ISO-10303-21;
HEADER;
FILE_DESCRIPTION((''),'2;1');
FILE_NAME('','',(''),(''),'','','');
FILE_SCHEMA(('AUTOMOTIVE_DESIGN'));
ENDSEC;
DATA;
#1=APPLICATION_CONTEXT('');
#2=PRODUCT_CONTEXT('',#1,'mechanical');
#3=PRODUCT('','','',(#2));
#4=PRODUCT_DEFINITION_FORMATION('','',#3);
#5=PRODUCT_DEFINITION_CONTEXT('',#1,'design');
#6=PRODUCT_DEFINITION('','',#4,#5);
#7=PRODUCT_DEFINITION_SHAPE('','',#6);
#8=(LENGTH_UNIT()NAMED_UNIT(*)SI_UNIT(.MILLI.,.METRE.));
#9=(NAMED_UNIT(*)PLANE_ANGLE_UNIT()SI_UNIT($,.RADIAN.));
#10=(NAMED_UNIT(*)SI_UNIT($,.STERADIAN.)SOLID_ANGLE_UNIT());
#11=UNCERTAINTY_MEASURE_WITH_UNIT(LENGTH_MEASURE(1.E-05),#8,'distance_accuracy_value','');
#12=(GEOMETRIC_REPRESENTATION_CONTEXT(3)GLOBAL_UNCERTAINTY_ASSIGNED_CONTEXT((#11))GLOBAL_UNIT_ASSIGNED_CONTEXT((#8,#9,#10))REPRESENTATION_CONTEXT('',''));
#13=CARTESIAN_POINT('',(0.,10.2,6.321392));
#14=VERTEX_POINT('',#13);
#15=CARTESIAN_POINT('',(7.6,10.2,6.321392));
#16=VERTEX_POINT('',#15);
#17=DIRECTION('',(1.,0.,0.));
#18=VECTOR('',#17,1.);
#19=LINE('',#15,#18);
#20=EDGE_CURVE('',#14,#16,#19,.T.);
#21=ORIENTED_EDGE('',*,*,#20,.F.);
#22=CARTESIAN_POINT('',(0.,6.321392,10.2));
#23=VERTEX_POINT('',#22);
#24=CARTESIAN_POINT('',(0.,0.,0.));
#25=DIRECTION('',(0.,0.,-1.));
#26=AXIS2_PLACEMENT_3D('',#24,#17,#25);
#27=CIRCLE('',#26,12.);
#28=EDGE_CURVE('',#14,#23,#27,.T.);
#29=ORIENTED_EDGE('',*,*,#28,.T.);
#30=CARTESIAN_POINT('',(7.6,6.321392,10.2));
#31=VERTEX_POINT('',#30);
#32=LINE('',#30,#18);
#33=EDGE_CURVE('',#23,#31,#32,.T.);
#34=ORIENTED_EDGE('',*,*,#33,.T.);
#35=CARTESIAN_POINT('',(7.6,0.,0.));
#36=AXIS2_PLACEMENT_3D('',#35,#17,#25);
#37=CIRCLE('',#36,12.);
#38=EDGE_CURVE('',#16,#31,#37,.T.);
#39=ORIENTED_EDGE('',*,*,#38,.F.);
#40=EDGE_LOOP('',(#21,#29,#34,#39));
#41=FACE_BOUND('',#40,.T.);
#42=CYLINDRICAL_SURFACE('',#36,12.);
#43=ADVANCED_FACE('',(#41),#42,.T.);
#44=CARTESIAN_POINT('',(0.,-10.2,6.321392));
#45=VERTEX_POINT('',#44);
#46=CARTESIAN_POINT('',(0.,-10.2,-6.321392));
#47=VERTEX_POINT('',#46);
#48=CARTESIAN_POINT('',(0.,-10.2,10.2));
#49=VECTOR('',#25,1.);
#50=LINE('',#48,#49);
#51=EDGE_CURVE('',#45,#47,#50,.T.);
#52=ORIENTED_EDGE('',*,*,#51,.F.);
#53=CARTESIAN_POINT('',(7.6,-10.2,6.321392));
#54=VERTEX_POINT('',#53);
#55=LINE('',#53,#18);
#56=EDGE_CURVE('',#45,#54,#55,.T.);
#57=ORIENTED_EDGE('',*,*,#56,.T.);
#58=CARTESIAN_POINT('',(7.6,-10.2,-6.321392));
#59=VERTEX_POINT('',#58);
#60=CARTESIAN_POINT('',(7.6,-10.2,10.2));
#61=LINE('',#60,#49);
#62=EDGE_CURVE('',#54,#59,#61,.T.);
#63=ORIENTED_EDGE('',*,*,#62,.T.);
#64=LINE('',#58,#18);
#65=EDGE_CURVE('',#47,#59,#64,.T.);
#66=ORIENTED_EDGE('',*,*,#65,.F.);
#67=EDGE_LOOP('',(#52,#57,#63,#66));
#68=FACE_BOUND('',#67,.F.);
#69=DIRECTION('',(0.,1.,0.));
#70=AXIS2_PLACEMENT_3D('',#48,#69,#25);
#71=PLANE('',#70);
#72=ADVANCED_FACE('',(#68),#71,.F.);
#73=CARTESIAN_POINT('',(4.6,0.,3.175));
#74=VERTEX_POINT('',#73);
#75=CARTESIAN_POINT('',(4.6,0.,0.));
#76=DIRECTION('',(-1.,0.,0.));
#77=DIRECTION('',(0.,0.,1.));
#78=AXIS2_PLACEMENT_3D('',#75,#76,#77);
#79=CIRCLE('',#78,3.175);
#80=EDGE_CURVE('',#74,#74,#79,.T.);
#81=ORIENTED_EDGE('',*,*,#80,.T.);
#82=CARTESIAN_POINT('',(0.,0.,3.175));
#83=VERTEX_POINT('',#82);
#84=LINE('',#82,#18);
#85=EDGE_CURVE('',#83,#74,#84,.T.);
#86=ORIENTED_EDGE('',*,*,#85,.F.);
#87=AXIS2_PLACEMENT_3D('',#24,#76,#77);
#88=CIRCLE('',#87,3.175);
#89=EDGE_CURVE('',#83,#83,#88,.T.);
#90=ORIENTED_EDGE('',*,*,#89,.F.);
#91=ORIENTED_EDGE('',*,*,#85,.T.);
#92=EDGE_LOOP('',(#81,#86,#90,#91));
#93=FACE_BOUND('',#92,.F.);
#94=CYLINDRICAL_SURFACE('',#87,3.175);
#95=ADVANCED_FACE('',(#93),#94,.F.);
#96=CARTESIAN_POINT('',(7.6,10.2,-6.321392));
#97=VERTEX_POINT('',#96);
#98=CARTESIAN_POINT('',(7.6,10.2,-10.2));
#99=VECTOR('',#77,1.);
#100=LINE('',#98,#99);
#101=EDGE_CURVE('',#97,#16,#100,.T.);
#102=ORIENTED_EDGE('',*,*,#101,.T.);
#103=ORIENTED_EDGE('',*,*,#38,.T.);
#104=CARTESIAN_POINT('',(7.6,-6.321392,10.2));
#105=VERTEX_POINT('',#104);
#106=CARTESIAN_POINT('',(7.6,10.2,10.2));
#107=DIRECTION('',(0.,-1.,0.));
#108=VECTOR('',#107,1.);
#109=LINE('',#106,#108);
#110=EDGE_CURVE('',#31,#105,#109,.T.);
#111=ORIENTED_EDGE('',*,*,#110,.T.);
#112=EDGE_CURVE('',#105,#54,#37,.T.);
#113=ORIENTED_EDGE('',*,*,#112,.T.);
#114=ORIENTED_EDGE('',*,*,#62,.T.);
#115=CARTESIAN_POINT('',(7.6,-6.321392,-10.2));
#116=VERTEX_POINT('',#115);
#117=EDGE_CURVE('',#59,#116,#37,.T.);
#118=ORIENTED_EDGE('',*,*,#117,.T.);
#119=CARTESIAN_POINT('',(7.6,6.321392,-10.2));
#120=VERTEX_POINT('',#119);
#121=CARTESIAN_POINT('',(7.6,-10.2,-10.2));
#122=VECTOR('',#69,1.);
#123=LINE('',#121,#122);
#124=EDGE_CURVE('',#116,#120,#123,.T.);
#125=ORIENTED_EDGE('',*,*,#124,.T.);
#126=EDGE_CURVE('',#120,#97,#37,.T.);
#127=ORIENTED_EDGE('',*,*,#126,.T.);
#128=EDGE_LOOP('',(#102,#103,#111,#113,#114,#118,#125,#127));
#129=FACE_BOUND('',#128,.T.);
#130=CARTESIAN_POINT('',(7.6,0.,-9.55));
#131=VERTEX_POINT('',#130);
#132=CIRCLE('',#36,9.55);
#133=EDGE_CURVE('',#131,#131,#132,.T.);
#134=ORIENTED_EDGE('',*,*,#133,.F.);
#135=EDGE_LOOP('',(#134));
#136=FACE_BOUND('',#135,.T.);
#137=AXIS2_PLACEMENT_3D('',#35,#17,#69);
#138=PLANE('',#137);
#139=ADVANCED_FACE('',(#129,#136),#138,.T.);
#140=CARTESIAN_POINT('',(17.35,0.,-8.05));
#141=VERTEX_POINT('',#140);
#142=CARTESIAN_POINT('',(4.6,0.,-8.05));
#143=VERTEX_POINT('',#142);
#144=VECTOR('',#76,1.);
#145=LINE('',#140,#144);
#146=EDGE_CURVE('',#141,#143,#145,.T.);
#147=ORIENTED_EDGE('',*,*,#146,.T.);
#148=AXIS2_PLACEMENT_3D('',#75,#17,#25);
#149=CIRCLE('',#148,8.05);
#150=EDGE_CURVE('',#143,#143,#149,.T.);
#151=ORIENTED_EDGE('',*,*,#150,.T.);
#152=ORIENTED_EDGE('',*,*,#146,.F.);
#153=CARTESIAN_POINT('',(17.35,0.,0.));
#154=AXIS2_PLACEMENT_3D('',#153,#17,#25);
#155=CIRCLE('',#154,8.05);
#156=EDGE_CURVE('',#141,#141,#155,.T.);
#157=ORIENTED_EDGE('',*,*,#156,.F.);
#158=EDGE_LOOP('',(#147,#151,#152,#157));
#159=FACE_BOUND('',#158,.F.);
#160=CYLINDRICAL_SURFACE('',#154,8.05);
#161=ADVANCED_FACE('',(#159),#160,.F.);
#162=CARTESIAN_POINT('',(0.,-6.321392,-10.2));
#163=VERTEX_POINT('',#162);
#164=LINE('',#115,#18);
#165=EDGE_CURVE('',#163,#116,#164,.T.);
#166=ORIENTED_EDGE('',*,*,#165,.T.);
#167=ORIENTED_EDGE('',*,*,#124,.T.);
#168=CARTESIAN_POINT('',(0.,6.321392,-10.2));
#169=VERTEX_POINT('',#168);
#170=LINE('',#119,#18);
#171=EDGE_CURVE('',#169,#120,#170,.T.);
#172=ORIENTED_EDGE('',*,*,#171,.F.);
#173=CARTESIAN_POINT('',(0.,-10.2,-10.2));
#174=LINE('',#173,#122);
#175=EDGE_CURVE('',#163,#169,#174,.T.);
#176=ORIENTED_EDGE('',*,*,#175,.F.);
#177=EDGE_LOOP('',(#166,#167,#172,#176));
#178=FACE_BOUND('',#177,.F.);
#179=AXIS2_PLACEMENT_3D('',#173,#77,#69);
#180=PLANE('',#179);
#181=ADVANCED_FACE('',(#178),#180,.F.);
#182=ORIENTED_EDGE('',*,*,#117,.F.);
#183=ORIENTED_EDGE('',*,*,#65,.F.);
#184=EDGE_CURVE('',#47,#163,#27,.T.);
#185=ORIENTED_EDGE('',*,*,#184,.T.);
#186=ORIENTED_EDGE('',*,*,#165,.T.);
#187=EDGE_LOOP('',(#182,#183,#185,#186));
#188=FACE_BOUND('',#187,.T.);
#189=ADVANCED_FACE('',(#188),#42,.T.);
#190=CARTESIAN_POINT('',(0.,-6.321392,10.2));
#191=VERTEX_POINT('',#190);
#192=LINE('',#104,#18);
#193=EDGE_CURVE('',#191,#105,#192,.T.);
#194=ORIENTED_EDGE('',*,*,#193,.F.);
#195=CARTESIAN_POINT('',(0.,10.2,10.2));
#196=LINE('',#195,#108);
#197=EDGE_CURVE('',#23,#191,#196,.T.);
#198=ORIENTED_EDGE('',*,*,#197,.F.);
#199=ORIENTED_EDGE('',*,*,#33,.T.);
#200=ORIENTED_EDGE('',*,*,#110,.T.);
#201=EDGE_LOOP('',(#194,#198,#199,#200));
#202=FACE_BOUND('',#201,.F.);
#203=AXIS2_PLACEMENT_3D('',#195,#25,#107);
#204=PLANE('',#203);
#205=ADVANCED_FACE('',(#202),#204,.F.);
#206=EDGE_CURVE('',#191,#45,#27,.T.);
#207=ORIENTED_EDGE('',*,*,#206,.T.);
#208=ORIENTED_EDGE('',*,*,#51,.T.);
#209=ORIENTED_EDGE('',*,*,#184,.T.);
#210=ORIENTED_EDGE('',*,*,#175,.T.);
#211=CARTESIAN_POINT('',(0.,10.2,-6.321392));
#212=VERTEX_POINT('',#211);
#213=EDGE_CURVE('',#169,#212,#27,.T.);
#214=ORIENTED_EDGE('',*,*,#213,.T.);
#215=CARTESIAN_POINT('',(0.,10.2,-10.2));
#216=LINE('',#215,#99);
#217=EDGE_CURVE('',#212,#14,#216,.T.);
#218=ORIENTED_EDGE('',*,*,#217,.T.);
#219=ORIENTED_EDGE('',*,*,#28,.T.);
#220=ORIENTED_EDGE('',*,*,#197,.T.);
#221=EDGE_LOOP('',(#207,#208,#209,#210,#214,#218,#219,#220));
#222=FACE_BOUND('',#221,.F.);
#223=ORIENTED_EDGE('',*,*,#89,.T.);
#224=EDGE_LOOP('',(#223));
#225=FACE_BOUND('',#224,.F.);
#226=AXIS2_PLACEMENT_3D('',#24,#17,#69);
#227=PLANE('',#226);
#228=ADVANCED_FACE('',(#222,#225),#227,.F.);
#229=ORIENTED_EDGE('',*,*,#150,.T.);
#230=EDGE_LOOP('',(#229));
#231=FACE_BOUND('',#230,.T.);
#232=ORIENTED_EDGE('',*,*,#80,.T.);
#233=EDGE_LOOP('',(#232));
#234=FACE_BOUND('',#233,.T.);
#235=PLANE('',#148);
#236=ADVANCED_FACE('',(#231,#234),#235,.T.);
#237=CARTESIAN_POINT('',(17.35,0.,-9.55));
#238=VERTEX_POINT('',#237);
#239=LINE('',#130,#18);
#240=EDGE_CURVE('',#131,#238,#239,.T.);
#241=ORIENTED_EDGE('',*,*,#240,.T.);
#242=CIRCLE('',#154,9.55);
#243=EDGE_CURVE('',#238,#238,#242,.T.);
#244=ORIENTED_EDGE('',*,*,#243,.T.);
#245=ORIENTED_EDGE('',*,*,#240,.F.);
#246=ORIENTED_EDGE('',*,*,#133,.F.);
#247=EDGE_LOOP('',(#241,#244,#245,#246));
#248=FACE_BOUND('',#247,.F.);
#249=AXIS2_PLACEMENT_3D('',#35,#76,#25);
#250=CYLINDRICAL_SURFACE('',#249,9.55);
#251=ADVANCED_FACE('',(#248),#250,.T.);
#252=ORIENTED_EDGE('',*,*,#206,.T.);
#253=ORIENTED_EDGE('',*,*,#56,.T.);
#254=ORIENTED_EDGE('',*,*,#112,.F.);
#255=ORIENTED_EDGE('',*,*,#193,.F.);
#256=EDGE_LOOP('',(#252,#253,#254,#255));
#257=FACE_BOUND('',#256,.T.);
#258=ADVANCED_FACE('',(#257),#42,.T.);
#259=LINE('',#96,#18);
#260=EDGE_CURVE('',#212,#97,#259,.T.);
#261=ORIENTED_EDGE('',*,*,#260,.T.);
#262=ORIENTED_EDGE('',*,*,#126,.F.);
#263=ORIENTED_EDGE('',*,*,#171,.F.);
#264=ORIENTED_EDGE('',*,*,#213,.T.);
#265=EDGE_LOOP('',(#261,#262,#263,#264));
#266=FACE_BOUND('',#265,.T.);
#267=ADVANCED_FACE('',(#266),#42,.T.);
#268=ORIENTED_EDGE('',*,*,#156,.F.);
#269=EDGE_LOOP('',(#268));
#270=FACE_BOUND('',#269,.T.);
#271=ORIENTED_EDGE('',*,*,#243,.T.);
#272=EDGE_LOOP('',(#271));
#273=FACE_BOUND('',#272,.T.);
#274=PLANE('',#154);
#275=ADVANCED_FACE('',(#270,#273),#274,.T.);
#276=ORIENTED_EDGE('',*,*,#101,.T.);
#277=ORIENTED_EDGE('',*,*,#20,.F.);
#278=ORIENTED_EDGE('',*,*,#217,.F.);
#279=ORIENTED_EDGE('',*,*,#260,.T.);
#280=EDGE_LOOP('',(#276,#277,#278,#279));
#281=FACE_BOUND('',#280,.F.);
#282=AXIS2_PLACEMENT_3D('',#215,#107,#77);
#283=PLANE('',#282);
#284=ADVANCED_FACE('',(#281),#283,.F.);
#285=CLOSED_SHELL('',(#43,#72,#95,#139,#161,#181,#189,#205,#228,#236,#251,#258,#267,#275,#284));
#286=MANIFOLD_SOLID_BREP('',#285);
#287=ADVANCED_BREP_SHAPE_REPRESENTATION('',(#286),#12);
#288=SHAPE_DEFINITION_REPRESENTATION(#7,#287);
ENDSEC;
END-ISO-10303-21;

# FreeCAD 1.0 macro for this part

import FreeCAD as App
import Part
import Sketcher
from FreeCAD import Vector
Q = App.Units.Quantity


def add_polygon(sketch, points):
    """Adds a closed chain of lines whose ends are joined by coincident constraints."""
    first, n = sketch.GeometryCount, len(points)
    for a, b in zip(points, points[1:] + points[:1]):
        sketch.addGeometry(Part.LineSegment(App.Vector(*a, 0), App.Vector(*b, 0)), False)
    for i in range(n):
        sketch.addConstraint(Sketcher.Constraint("Coincident", first + i, 2, first + (i + 1) % n, 1))

doc = App.newDocument("Part")
params = doc.addObject("Spreadsheet::Sheet", "Params")
for row, (alias, value) in enumerate([
    ("sketch1_width", "20.4 mm"),
    ("pad1_length", "7.6 mm"),
    ("sketch2_diameter", "24 mm"),
    ("pocket1_length", "7.6 mm"),
    ("sketch3_diameter", "19.1 mm"),
    ("pad2_length", "9.75 mm"),
    ("sketch4_diameter", "16.1 mm"),
    ("pocket2_length", "12.75 mm"),
    ("sketch5_diameter", "6.35 mm"),
    ("pocket3_length", "12.75 mm"),
], start=1):
    params.set(f"A{row}", alias)
    params.set(f"B{row}", "=" + value)
    params.setAlias(f"B{row}", alias)

body = doc.addObject("PartDesign::Body", "Body")

# Sketch on YZ plane
sketch1 = body.newObject("Sketcher::SketchObject", "Sketch")
sketch1.AttachmentSupport = (doc.getObject("YZ_Plane"), [""])
sketch1.MapMode = "FlatFace"
add_polygon(sketch1, [(-10, 10), (-10, -10), (10, -10), (10, 10)])  # lines 0-3
sketch1.addConstraint([
    Sketcher.Constraint("Vertical", 0),
    Sketcher.Constraint("Horizontal", 1),
    Sketcher.Constraint("Vertical", 2),
    Sketcher.Constraint("Horizontal", 3),
    Sketcher.Constraint("Symmetric", 0, 2, 2, 2, -1, 1),
    Sketcher.Constraint("Equal", 3, 0),
    Sketcher.Constraint("DistanceX", 1, 1, 1, 2, Q("20.4 mm")),
])
sketch1.setExpression("Constraints[10]", "Params.sketch1_width")
pad1 = body.newObject("PartDesign::Pad", "Pad")
pad1.Profile = sketch1
pad1.setExpression("Length", "Params.pad1_length")

# Sketch on YZ plane
sketch2 = body.newObject("Sketcher::SketchObject", "Sketch001")
sketch2.AttachmentSupport = (doc.getObject("YZ_Plane"), [""])
sketch2.MapMode = "FlatFace"
sketch2.AttachmentOffset = App.Placement(Vector(0, 0, 7.6), App.Rotation())
sketch2.addGeometry([
    Part.Circle(Vector(0, 0, 0), Vector(0, 0, 1), 17),
    Part.Circle(Vector(0, 0, 0), Vector(0, 0, 1), 12),
], False)
sketch2.addConstraint([
    Sketcher.Constraint("Coincident", 0, 3, -1, 1),
    Sketcher.Constraint("Coincident", 1, 3, -1, 1),
    Sketcher.Constraint("Diameter", 1, Q("24 mm")),
    Sketcher.Constraint("Diameter", 0, Q("33.376 mm")),
])
sketch2.setExpression("Constraints[2]", "Params.sketch2_diameter")
pocket1 = body.newObject("PartDesign::Pocket", "Pocket")
pocket1.Profile = sketch2
pocket1.setExpression("Length", "Params.pocket1_length")

# Sketch on YZ plane
sketch3 = body.newObject("Sketcher::SketchObject", "Sketch002")
sketch3.AttachmentSupport = (doc.getObject("YZ_Plane"), [""])
sketch3.MapMode = "FlatFace"
sketch3.AttachmentOffset = App.Placement(Vector(0, 0, 7.6), App.Rotation())
sketch3.addGeometry(Part.Circle(Vector(0, 0, 0), Vector(0, 0, 1), 10), False)
sketch3.addConstraint([
    Sketcher.Constraint("Coincident", 0, 3, -1, 1),
    Sketcher.Constraint("Diameter", 0, Q("19.1 mm")),
])
sketch3.setExpression("Constraints[1]", "Params.sketch3_diameter")
pad2 = body.newObject("PartDesign::Pad", "Pad001")
pad2.Profile = sketch3
pad2.setExpression("Length", "Params.pad2_length")

# Sketch on YZ plane
sketch4 = body.newObject("Sketcher::SketchObject", "Sketch003")
sketch4.AttachmentSupport = (doc.getObject("YZ_Plane"), [""])
sketch4.MapMode = "FlatFace"
sketch4.AttachmentOffset = App.Placement(Vector(0, 0, 17.35), App.Rotation())
sketch4.addGeometry(Part.Circle(Vector(0, 0, 0), Vector(0, 0, 1), 8), False)
sketch4.addConstraint([
    Sketcher.Constraint("Coincident", 0, 3, -1, 1),
    Sketcher.Constraint("Diameter", 0, Q("16.1 mm")),
])
sketch4.setExpression("Constraints[1]", "Params.sketch4_diameter")
pocket2 = body.newObject("PartDesign::Pocket", "Pocket001")
pocket2.Profile = sketch4
pocket2.setExpression("Length", "Params.pocket2_length")

# Sketch on YZ plane
sketch5 = body.newObject("Sketcher::SketchObject", "Sketch004")
sketch5.AttachmentSupport = (doc.getObject("YZ_Plane"), [""])
sketch5.MapMode = "FlatFace"
sketch5.addGeometry(Part.Circle(Vector(0, 0, 0), Vector(0, 0, 1), 3.2), False)
sketch5.addConstraint([
    Sketcher.Constraint("Coincident", 0, 3, -1, 1),
    Sketcher.Constraint("Diameter", 0, Q("6.35 mm")),
])
sketch5.setExpression("Constraints[1]", "Params.sketch5_diameter")
pocket3 = body.newObject("PartDesign::Pocket", "Pocket002")
pocket3.Profile = sketch5
pocket3.setExpression("Length", "Params.pocket3_length")
pocket3.Reversed = True

doc.recompute()
